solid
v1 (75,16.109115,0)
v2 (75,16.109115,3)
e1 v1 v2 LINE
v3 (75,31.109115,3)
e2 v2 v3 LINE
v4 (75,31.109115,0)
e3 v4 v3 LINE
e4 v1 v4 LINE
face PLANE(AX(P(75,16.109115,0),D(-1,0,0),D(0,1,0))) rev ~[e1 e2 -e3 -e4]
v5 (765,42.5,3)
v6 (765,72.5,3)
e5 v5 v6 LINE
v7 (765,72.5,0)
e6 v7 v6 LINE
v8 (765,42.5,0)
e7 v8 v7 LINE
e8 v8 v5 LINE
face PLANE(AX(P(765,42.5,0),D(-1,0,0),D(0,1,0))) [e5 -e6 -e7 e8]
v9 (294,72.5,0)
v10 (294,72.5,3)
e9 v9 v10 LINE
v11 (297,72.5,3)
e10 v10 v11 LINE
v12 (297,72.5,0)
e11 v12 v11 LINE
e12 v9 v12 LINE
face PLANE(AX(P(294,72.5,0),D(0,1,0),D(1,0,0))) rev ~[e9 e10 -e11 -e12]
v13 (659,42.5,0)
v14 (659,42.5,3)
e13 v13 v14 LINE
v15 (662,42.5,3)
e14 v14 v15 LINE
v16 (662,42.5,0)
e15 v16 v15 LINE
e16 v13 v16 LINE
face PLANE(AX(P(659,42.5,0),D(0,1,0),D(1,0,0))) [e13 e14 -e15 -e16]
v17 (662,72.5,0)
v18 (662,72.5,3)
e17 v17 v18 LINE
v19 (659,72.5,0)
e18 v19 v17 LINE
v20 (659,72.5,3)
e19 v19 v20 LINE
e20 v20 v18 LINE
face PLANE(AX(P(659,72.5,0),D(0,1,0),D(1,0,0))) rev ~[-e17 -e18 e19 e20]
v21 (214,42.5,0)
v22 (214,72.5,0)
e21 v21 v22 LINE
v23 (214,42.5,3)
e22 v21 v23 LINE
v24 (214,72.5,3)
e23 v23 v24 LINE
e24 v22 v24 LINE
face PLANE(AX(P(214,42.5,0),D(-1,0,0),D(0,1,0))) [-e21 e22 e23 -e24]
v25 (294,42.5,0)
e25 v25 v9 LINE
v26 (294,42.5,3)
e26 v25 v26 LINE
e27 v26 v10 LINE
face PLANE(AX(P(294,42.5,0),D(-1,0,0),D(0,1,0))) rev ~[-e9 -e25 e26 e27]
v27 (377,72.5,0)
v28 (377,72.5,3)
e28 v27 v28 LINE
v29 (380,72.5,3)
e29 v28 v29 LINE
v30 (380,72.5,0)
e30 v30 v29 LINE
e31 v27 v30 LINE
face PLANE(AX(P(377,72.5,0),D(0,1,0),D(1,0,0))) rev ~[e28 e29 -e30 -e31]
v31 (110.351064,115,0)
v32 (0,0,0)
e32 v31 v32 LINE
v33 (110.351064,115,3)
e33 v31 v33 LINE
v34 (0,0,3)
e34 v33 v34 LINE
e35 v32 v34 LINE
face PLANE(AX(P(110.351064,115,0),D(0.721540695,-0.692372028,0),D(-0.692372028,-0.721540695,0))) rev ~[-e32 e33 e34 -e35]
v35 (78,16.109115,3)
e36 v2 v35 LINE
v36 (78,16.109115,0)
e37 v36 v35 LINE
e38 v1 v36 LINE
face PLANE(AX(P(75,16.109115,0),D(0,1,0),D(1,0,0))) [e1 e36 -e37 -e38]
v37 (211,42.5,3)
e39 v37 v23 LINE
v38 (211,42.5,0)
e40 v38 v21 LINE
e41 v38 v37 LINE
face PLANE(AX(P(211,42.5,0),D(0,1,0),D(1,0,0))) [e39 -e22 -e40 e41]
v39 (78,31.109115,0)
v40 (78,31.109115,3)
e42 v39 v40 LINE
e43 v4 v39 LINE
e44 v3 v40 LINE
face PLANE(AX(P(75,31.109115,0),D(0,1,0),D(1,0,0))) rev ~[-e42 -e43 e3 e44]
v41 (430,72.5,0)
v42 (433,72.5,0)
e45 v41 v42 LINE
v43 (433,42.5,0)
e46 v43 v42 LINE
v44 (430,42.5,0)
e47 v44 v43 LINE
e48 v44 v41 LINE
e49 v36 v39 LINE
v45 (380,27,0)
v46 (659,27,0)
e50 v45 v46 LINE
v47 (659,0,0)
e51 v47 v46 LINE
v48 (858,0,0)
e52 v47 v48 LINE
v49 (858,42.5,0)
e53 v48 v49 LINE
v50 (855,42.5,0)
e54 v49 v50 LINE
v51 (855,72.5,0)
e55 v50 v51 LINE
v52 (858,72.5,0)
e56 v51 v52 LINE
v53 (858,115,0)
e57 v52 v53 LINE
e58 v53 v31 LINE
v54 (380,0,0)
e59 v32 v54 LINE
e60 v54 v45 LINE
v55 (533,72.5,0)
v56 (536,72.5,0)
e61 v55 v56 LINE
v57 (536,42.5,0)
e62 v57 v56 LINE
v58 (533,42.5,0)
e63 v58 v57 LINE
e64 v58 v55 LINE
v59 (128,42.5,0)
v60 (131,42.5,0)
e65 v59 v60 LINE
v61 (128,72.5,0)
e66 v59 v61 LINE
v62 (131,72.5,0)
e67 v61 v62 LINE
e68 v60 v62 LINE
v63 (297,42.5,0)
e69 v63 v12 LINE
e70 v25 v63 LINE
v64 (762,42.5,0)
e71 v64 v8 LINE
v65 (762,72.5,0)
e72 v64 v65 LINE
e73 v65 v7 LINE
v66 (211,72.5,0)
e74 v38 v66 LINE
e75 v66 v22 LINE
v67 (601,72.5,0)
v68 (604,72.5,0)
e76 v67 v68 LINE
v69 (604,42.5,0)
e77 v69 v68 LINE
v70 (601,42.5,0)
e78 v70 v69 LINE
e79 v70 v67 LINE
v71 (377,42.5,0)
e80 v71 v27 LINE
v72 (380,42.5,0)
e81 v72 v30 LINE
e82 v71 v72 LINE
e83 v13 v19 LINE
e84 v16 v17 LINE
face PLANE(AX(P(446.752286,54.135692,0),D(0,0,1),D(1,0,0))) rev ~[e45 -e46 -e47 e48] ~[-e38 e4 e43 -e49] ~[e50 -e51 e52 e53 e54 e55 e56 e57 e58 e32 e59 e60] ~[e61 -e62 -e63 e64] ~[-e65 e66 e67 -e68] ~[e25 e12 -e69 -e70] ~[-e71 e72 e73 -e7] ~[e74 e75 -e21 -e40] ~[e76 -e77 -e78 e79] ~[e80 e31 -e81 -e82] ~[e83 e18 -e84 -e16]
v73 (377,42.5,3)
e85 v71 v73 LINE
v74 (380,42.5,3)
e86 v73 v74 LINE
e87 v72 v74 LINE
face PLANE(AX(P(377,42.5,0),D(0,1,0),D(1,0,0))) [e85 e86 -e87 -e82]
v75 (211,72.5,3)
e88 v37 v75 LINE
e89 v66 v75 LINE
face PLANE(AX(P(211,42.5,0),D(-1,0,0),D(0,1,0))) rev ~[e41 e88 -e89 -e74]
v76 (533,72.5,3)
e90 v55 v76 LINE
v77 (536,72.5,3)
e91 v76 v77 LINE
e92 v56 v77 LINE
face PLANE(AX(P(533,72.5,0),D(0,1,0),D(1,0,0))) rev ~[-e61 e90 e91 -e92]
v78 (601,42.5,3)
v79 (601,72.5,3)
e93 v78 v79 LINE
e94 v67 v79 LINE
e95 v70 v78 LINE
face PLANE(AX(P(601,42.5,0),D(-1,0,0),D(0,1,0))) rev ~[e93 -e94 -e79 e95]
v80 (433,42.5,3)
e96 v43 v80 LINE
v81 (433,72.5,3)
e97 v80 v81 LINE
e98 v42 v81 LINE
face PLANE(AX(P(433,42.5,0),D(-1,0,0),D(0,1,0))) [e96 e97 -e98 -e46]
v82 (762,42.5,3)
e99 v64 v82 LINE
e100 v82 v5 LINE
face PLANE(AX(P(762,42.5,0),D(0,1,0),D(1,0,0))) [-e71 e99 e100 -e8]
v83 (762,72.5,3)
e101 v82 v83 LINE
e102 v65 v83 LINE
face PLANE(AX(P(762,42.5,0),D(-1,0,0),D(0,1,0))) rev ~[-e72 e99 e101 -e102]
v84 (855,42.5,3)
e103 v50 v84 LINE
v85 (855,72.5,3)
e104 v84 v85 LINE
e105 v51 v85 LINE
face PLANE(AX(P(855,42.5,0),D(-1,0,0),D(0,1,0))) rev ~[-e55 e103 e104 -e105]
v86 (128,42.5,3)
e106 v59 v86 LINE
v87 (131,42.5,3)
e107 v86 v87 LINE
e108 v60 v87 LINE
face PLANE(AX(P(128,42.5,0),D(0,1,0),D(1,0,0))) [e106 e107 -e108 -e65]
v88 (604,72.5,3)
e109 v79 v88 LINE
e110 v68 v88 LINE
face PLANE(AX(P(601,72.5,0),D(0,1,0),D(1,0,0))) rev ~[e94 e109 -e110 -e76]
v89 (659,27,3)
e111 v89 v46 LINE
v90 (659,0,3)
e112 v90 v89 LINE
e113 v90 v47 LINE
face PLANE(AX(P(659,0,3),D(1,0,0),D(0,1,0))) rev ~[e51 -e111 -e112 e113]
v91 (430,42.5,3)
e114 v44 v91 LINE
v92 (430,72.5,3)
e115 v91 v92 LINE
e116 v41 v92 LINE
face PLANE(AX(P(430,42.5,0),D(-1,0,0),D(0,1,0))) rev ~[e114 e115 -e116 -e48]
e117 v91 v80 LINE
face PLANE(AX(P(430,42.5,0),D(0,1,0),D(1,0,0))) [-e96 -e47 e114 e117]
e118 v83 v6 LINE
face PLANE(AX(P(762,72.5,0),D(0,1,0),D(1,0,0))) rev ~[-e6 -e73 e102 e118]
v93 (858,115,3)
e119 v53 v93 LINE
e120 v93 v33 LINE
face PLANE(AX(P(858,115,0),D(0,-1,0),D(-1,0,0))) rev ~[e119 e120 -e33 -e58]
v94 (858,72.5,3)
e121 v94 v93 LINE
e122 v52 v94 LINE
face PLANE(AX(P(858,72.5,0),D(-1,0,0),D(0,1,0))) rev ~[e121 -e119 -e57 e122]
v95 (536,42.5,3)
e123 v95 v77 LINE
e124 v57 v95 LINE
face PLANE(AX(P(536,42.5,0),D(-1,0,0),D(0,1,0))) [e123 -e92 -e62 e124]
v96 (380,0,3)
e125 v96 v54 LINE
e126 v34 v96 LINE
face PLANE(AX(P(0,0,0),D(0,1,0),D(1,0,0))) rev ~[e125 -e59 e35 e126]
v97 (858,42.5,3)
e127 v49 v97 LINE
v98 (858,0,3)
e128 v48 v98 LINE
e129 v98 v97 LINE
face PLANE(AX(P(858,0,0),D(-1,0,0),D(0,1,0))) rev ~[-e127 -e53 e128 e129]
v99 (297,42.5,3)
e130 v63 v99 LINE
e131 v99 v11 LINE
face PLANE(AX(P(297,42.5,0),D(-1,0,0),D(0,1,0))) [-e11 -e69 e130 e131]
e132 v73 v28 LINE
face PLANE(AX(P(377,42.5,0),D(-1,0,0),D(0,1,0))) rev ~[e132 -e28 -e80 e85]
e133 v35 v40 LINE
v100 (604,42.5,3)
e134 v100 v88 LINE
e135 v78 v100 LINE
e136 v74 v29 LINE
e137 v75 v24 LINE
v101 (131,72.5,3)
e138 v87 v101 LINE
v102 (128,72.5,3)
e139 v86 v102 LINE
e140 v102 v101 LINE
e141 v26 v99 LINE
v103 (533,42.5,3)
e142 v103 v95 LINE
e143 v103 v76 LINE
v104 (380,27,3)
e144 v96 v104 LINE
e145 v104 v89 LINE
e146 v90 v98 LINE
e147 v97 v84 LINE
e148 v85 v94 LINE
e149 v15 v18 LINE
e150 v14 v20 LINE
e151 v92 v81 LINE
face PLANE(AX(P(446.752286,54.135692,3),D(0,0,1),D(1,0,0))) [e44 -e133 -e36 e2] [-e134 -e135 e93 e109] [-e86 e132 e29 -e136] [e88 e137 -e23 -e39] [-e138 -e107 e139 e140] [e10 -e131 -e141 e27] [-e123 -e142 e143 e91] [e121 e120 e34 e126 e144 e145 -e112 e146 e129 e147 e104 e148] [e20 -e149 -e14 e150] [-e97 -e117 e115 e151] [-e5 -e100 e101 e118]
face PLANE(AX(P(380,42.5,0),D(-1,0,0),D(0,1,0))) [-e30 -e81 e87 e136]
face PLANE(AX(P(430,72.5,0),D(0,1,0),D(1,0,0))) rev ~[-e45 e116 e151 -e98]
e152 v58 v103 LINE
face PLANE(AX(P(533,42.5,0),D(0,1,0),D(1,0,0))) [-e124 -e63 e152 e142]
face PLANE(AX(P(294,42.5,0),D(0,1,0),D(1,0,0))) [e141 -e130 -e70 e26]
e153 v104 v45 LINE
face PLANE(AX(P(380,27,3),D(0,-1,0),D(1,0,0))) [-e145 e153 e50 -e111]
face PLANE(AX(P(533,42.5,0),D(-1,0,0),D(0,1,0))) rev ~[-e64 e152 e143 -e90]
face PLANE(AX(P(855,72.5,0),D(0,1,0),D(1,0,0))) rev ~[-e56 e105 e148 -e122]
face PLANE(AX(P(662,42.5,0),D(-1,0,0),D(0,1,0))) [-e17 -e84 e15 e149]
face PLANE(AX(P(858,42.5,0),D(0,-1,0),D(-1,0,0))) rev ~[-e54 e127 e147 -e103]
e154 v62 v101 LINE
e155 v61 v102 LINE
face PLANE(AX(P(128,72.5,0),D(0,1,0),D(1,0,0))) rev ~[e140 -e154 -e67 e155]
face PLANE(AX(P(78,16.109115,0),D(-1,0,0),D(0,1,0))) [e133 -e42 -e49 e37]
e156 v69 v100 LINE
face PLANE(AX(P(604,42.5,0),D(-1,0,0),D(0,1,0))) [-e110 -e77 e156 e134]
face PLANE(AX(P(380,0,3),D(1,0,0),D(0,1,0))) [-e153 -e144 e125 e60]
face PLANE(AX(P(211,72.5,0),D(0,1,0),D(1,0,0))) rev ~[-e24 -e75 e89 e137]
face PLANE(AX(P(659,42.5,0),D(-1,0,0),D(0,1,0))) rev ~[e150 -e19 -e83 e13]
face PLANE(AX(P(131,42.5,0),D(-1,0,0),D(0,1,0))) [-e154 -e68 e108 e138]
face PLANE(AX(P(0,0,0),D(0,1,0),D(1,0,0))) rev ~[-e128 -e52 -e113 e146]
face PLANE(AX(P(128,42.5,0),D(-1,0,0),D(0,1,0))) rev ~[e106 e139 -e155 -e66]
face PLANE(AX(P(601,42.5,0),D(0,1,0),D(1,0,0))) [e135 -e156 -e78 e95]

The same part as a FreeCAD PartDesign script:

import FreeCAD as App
import Part
import Sketcher

V = App.Vector


def add_polygon(sketch, points):
    """Adds a closed chain of lines whose ends are joined by coincident constraints."""
    first, n = sketch.GeometryCount, len(points)
    for a, b in zip(points, points[1:] + points[:1]):
        sketch.addGeometry(Part.LineSegment(App.Vector(*a, 0), App.Vector(*b, 0)), False)
    for i in range(n):
        sketch.addConstraint(Sketcher.Constraint("Coincident", first + i, 2, first + (i + 1) % n, 1))

doc = App.newDocument("Part")
body = doc.addObject("PartDesign::Body", "Body")

# Sketch on XY plane
sketch1 = body.newObject("Sketcher::SketchObject", "Sketch")
sketch1.AttachmentSupport = (doc.getObject("XY_Plane"), [""])
sketch1.MapMode = "FlatFace"
add_polygon(sketch1, [(110.4, 115), (0, 0), (858, 0), (858, 42.5), (855, 42.5), (855, 72.5), (858, 72.5), (858, 115)])  # lines 0-7
add_polygon(sketch1, [(78, 16.1), (75, 16.1), (75, 31.1), (78, 31.1)])  # lines 8-11
add_polygon(sketch1, [(131, 42.5), (128, 42.5), (128, 72.5), (131, 72.5)])  # lines 12-15
add_polygon(sketch1, [(214, 42.5), (211, 42.5), (211, 72.5), (214, 72.5)])  # lines 16-19
add_polygon(sketch1, [(297, 42.5), (294, 42.5), (294, 72.5), (297, 72.5)])  # lines 20-23
add_polygon(sketch1, [(380, 42.5), (377, 42.5), (377, 72.5), (380, 72.5)])  # lines 24-27
add_polygon(sketch1, [(433, 42.5), (430, 42.5), (430, 72.5), (433, 72.5)])  # lines 28-31
add_polygon(sketch1, [(536, 42.5), (533, 42.5), (533, 72.5), (536, 72.5)])  # lines 32-35
add_polygon(sketch1, [(604, 42.5), (601, 42.5), (601, 72.5), (604, 72.5)])  # lines 36-39
add_polygon(sketch1, [(662, 42.5), (659, 42.5), (659, 72.5), (662, 72.5)])  # lines 40-43
add_polygon(sketch1, [(765, 42.5), (762, 42.5), (762, 72.5), (765, 72.5)])  # lines 44-47
sketch1.addConstraint([
    Sketcher.Constraint("Horizontal", 1),
    Sketcher.Constraint("Vertical", 2),
    Sketcher.Constraint("Horizontal", 3),
    Sketcher.Constraint("Vertical", 4),
    Sketcher.Constraint("Horizontal", 5),
    Sketcher.Constraint("Vertical", 6),
    Sketcher.Constraint("Horizontal", 7),
    Sketcher.Constraint("Horizontal", 8),
    Sketcher.Constraint("Vertical", 9),
    Sketcher.Constraint("Horizontal", 10),
    Sketcher.Constraint("Vertical", 11),
    Sketcher.Constraint("Horizontal", 12),
    Sketcher.Constraint("Vertical", 13),
    Sketcher.Constraint("Horizontal", 14),
    Sketcher.Constraint("Vertical", 15),
    Sketcher.Constraint("Horizontal", 16),
    Sketcher.Constraint("Vertical", 17),
    Sketcher.Constraint("Horizontal", 18),
    Sketcher.Constraint("Vertical", 19),
    Sketcher.Constraint("Horizontal", 20),
    Sketcher.Constraint("Vertical", 21),
    Sketcher.Constraint("Horizontal", 22),
    Sketcher.Constraint("Vertical", 23),
    Sketcher.Constraint("Horizontal", 24),
    Sketcher.Constraint("Vertical", 25),
    Sketcher.Constraint("Horizontal", 26),
    Sketcher.Constraint("Vertical", 27),
    Sketcher.Constraint("Horizontal", 28),
    Sketcher.Constraint("Vertical", 29),
    Sketcher.Constraint("Horizontal", 30),
    Sketcher.Constraint("Vertical", 31),
    Sketcher.Constraint("Horizontal", 32),
    Sketcher.Constraint("Vertical", 33),
    Sketcher.Constraint("Horizontal", 34),
    Sketcher.Constraint("Vertical", 35),
    Sketcher.Constraint("Horizontal", 36),
    Sketcher.Constraint("Vertical", 37),
    Sketcher.Constraint("Horizontal", 38),
    Sketcher.Constraint("Vertical", 39),
    Sketcher.Constraint("Horizontal", 40),
    Sketcher.Constraint("Vertical", 41),
    Sketcher.Constraint("Horizontal", 42),
    Sketcher.Constraint("Vertical", 43),
    Sketcher.Constraint("Horizontal", 44),
    Sketcher.Constraint("Vertical", 45),
    Sketcher.Constraint("Horizontal", 46),
    Sketcher.Constraint("Vertical", 47),
    Sketcher.Constraint("Coincident", 0, 2, -1, 1),
    Sketcher.Constraint("Horizontal", 3, 2, 12, 2),
    Sketcher.Constraint("Horizontal", 5, 2, 13, 2),
    Sketcher.Constraint("Horizontal", 15, 2, 16, 2),
    Sketcher.Constraint("Horizontal", 14, 2, 17, 2),
    Sketcher.Constraint("Horizontal", 19, 2, 20, 2),
    Sketcher.Constraint("Horizontal", 18, 2, 21, 2),
    Sketcher.Constraint("Horizontal", 23, 2, 24, 2),
    Sketcher.Constraint("Horizontal", 22, 2, 25, 2),
    Sketcher.Constraint("Horizontal", 27, 2, 28, 2),
    Sketcher.Constraint("Horizontal", 26, 2, 29, 2),
    Sketcher.Constraint("Horizontal", 31, 2, 32, 2),
    Sketcher.Constraint("Horizontal", 30, 2, 33, 2),
    Sketcher.Constraint("Horizontal", 35, 2, 36, 2),
    Sketcher.Constraint("Horizontal", 34, 2, 37, 2),
    Sketcher.Constraint("Horizontal", 39, 2, 40, 2),
    Sketcher.Constraint("Horizontal", 38, 2, 41, 2),
    Sketcher.Constraint("Horizontal", 43, 2, 44, 2),
    Sketcher.Constraint("Horizontal", 42, 2, 45, 2),
    Sketcher.Constraint("Vertical", 2, 2, 5, 2),
    Sketcher.Constraint("Equal", 5, 8),
    Sketcher.Constraint("Equal", 10, 12),
    Sketcher.Constraint("Equal", 14, 16),
    Sketcher.Constraint("Equal", 18, 20),
    Sketcher.Constraint("Equal", 22, 24),
    Sketcher.Constraint("Equal", 26, 28),
    Sketcher.Constraint("Equal", 30, 32),
    Sketcher.Constraint("Equal", 34, 36),
    Sketcher.Constraint("Equal", 38, 40),
    Sketcher.Constraint("Equal", 42, 44),
    Sketcher.Constraint("Equal", 2, 6),
    Sketcher.Constraint("DistanceX", 1, 1, 1, 2, 858.0),
    Sketcher.Constraint("DistanceX", 3, 2, 3, 1, 3.0),
    Sketcher.Constraint("DistanceY", 4, 1, 4, 2, 30.0),
    Sketcher.Constraint("DistanceY", 9, 1, 9, 2, 15.0),
    Sketcher.Constraint("DistanceY", 2, 1, 2, 2, 42.5),
    Sketcher.Constraint("DistanceX", -1, 1, 8, 2, 75.0),
    Sketcher.Constraint("DistanceX", -1, 1, 12, 2, 128.0),
    Sketcher.Constraint("DistanceX", -1, 1, 16, 2, 211.0),
    Sketcher.Constraint("DistanceX", -1, 1, 20, 2, 294.0),
    Sketcher.Constraint("DistanceX", -1, 1, 24, 2, 377.0),
    Sketcher.Constraint("DistanceX", -1, 1, 28, 2, 430.0),
    Sketcher.Constraint("DistanceX", -1, 1, 32, 2, 533.0),
    Sketcher.Constraint("DistanceX", -1, 1, 36, 2, 601.0),
    Sketcher.Constraint("DistanceX", -1, 1, 40, 2, 659.0),
    Sketcher.Constraint("DistanceX", -1, 1, 44, 2, 762.0),
    Sketcher.Constraint("Distance", 0, 159.38117),
    Sketcher.Constraint("DistanceY", -1, 1, 8, 2, 16.109115),
])
pad1 = body.newObject("PartDesign::Pad", "Pad")
pad1.Profile = sketch1
pad1.Length = 3

# Sketch on XY plane
sketch2 = body.newObject("Sketcher::SketchObject", "Sketch001")
sketch2.AttachmentSupport = (doc.getObject("XY_Plane"), [""])
sketch2.MapMode = "FlatFace"
sketch2.AttachmentOffset = App.Placement(V(0, 0, 3), App.Rotation())
add_polygon(sketch2, [(380, 27), (380, 0), (659, 0), (659, 27)])  # lines 0-3
sketch2.addConstraint([
    Sketcher.Constraint("Vertical", 0),
    Sketcher.Constraint("Horizontal", 1),
    Sketcher.Constraint("Vertical", 2),
    Sketcher.Constraint("Horizontal", 3),
    Sketcher.Constraint("PointOnObject", 0, 2, -1),
    Sketcher.Constraint("DistanceX", 1, 1, 1, 2, 279.0),
    Sketcher.Constraint("DistanceY", 0, 2, 0, 1, 27.0),
    Sketcher.Constraint("DistanceX", -1, 1, 0, 2, 380.0),
])
pocket1 = body.newObject("PartDesign::Pocket", "Pocket")
pocket1.Profile = sketch2
pocket1.Length = 10

doc.recompute()
